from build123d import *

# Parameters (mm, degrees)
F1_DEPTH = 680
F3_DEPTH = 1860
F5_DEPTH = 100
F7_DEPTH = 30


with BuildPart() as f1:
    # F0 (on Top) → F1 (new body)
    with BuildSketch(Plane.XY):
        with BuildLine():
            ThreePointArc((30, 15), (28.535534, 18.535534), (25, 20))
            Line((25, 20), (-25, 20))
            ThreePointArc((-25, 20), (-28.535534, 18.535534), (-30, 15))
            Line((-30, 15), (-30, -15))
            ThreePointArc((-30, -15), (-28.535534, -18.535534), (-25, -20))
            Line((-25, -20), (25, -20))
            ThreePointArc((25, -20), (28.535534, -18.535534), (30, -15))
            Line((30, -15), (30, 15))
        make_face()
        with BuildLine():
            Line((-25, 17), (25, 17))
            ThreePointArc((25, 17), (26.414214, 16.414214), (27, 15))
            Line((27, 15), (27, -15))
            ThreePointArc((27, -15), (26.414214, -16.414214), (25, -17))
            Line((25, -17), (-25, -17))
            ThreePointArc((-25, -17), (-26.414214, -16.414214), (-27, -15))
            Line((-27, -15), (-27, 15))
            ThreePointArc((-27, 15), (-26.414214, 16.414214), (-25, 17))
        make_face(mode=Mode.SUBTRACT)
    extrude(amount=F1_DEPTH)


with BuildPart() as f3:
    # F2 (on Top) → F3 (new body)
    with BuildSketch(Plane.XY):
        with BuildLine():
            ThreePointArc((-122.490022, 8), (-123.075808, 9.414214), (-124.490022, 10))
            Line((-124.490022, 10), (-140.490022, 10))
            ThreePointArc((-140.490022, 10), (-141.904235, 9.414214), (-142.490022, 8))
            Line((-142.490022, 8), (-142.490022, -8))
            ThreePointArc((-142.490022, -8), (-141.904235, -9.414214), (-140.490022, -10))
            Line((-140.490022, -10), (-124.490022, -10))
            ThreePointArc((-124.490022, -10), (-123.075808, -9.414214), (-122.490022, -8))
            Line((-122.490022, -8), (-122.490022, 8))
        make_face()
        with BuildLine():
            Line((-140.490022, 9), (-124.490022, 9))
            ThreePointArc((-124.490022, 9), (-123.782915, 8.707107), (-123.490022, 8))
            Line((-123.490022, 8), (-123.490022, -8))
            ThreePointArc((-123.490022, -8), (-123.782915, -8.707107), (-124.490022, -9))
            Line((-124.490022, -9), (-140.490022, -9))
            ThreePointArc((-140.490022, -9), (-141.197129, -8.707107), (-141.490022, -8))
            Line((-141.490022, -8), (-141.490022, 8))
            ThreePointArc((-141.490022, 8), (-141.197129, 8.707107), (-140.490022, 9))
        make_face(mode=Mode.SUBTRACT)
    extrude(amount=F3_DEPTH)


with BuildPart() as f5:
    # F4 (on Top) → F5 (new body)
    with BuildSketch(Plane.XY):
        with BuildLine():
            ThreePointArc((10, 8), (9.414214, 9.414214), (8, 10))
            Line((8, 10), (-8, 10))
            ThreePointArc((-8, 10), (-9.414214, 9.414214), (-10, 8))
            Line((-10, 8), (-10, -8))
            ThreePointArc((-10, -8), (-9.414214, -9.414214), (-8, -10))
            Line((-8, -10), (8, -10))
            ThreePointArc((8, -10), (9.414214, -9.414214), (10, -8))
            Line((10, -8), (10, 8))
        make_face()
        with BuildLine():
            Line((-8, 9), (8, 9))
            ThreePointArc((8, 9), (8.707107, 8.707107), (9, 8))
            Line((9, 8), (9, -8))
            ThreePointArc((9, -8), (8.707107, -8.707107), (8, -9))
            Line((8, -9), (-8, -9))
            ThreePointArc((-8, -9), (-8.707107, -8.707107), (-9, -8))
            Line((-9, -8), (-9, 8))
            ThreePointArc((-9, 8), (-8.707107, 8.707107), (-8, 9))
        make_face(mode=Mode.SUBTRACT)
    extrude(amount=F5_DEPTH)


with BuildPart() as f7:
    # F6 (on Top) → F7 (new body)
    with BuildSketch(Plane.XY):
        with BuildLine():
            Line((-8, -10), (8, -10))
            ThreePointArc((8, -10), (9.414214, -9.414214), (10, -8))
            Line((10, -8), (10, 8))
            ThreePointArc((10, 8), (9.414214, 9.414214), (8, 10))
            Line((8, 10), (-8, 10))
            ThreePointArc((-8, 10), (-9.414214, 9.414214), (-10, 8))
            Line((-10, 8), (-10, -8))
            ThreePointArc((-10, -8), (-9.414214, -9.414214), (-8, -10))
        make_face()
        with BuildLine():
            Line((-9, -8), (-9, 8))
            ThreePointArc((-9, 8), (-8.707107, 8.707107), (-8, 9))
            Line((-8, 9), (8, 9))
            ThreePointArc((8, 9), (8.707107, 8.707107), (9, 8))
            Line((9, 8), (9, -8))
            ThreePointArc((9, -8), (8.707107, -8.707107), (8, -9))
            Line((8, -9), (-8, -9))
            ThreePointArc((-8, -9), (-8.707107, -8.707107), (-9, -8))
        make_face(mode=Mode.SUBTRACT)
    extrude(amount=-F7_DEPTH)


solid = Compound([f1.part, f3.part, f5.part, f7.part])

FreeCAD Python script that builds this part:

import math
import FreeCAD as App
import Part
import Sketcher
from FreeCAD import Vector

doc = App.newDocument("Part")
body = doc.addObject("PartDesign::Body", "Body")

# Sketch on XY plane
sketch1 = doc.addObject("Sketcher::SketchObject", "Sketch")
body.addObject(sketch1)
sketch1.AttachmentSupport = (doc.XY_Plane, [""])
sketch1.MapMode = "FlatFace"
sketch1.addGeometry([
    Part.ArcOfCircle(Part.Circle(Vector(25, 15, 0), Vector(0, 0, 1), 5), math.radians(0), math.radians(90)),  # 0
    Part.LineSegment(Vector(25, 20, 0), Vector(-25, 20, 0)),  # 1
    Part.ArcOfCircle(Part.Circle(Vector(-25, 15, 0), Vector(0, 0, 1), 5), math.radians(90), math.radians(180)),  # 2
    Part.LineSegment(Vector(-30, 15, 0), Vector(-30, -15, 0)),  # 3
    Part.ArcOfCircle(Part.Circle(Vector(-25, -15, 0), Vector(0, 0, 1), 5), math.radians(180), math.radians(270)),  # 4
    Part.LineSegment(Vector(-25, -20, 0), Vector(25, -20, 0)),  # 5
    Part.ArcOfCircle(Part.Circle(Vector(25, -15, 0), Vector(0, 0, 1), 5), math.radians(-90), math.radians(0)),  # 6
    Part.LineSegment(Vector(30, -15, 0), Vector(30, 15, 0)),  # 7
    Part.ArcOfCircle(Part.Circle(Vector(-25, 15, 0), Vector(0, 0, 1), 2), math.radians(90), math.radians(180)),  # 8
    Part.LineSegment(Vector(-25, 17, 0), Vector(25, 17, 0)),  # 9
    Part.ArcOfCircle(Part.Circle(Vector(25, 15, 0), Vector(0, 0, 1), 2), math.radians(0), math.radians(90)),  # 10
    Part.LineSegment(Vector(27, 15, 0), Vector(27, -15, 0)),  # 11
    Part.ArcOfCircle(Part.Circle(Vector(25, -15, 0), Vector(0, 0, 1), 2), math.radians(-90), math.radians(0)),  # 12
    Part.LineSegment(Vector(25, -17, 0), Vector(-25, -17, 0)),  # 13
    Part.ArcOfCircle(Part.Circle(Vector(-25, -15, 0), Vector(0, 0, 1), 2), math.radians(180), math.radians(270)),  # 14
    Part.LineSegment(Vector(-27, -15, 0), Vector(-27, 15, 0)),  # 15
], False)
sketch1.addConstraint([
    Sketcher.Constraint("Tangent", 0, 2, 1, 1),
    Sketcher.Constraint("Tangent", 1, 2, 2, 1),
    Sketcher.Constraint("Tangent", 2, 2, 3, 1),
    Sketcher.Constraint("Tangent", 3, 2, 4, 1),
    Sketcher.Constraint("Tangent", 4, 2, 5, 1),
    Sketcher.Constraint("Tangent", 5, 2, 6, 1),
    Sketcher.Constraint("Tangent", 6, 2, 7, 1),
    Sketcher.Constraint("Tangent", 7, 2, 0, 1),
    Sketcher.Constraint("Tangent", 8, 1, 9, 1),
    Sketcher.Constraint("Tangent", 9, 2, 10, 2),
    Sketcher.Constraint("Tangent", 10, 1, 11, 1),
    Sketcher.Constraint("Tangent", 11, 2, 12, 2),
    Sketcher.Constraint("Tangent", 12, 1, 13, 1),
    Sketcher.Constraint("Tangent", 13, 2, 14, 2),
    Sketcher.Constraint("Tangent", 14, 1, 15, 1),
    Sketcher.Constraint("Tangent", 15, 2, 8, 2),
    Sketcher.Constraint("Horizontal", 1),
    Sketcher.Constraint("Vertical", 3),
    Sketcher.Constraint("Horizontal", 5),
    Sketcher.Constraint("Vertical", 7),
    Sketcher.Constraint("Horizontal", 9),
    Sketcher.Constraint("Vertical", 11),
    Sketcher.Constraint("Horizontal", 13),
    Sketcher.Constraint("Vertical", 15),
    Sketcher.Constraint("Coincident", 8, 3, 2, 3),
    Sketcher.Constraint("Coincident", 10, 3, 0, 3),
    Sketcher.Constraint("Coincident", 12, 3, 6, 3),
    Sketcher.Constraint("Equal", 0, 2),
    Sketcher.Constraint("Equal", 2, 4),
    Sketcher.Constraint("Equal", 4, 6),
    Sketcher.Constraint("Equal", 12, 14),
    Sketcher.Constraint("Symmetric", 0, 3, 4, 3, -1, 1),
    Sketcher.Constraint("Radius", 0, 5.0),
    Sketcher.Constraint("Radius", 8, 1.999999),
    Sketcher.Constraint("DistanceX", 1, 2, 1, 1, 50.0),
    Sketcher.Constraint("DistanceY", 3, 2, 3, 1, 30.0),
])
pad1 = doc.addObject("PartDesign::Pad", "Pad")
body.addObject(pad1)
pad1.Profile = sketch1
pad1.Length = 680
body2 = doc.addObject("PartDesign::Body", "Body001")

# Sketch on XY plane
sketch2 = doc.addObject("Sketcher::SketchObject", "Sketch001")
body2.addObject(sketch2)
sketch2.AttachmentSupport = (doc.getObject("XY_Plane001"), [""])
sketch2.MapMode = "FlatFace"
sketch2.addGeometry([
    Part.ArcOfCircle(Part.Circle(Vector(-124.5, 8, 0), Vector(0, 0, 1), 2), math.radians(0), math.radians(90)),  # 0
    Part.LineSegment(Vector(-124.5, 10, 0), Vector(-140.5, 10, 0)),  # 1
    Part.ArcOfCircle(Part.Circle(Vector(-140.5, 8, 0), Vector(0, 0, 1), 2), math.radians(90), math.radians(180)),  # 2
    Part.LineSegment(Vector(-142.5, 8, 0), Vector(-142.5, -8, 0)),  # 3
    Part.ArcOfCircle(Part.Circle(Vector(-140.5, -8, 0), Vector(0, 0, 1), 2), math.radians(-180), math.radians(-90)),  # 4
    Part.LineSegment(Vector(-140.5, -10, 0), Vector(-124.5, -10, 0)),  # 5
    Part.ArcOfCircle(Part.Circle(Vector(-124.5, -8, 0), Vector(0, 0, 1), 2), math.radians(-90), math.radians(0)),  # 6
    Part.LineSegment(Vector(-122.5, -8, 0), Vector(-122.5, 8, 0)),  # 7
    Part.ArcOfCircle(Part.Circle(Vector(-140.5, 8, 0), Vector(0, 0, 1), 1), math.radians(90), math.radians(180)),  # 8
    Part.LineSegment(Vector(-140.5, 9, 0), Vector(-124.5, 9, 0)),  # 9
    Part.ArcOfCircle(Part.Circle(Vector(-124.5, 8, 0), Vector(0, 0, 1), 1), math.radians(0), math.radians(90)),  # 10
    Part.LineSegment(Vector(-123.5, 8, 0), Vector(-123.5, -8, 0)),  # 11
    Part.ArcOfCircle(Part.Circle(Vector(-124.5, -8, 0), Vector(0, 0, 1), 1), math.radians(-90), math.radians(0)),  # 12
    Part.LineSegment(Vector(-124.5, -9, 0), Vector(-140.5, -9, 0)),  # 13
    Part.ArcOfCircle(Part.Circle(Vector(-140.5, -8, 0), Vector(0, 0, 1), 1), math.radians(180), math.radians(270)),  # 14
    Part.LineSegment(Vector(-141.5, -8, 0), Vector(-141.5, 8, 0)),  # 15
], False)
sketch2.addConstraint([
    Sketcher.Constraint("Tangent", 0, 2, 1, 1),
    Sketcher.Constraint("Tangent", 1, 2, 2, 1),
    Sketcher.Constraint("Tangent", 2, 2, 3, 1),
    Sketcher.Constraint("Tangent", 3, 2, 4, 1),
    Sketcher.Constraint("Tangent", 4, 2, 5, 1),
    Sketcher.Constraint("Tangent", 5, 2, 6, 1),
    Sketcher.Constraint("Tangent", 6, 2, 7, 1),
    Sketcher.Constraint("Tangent", 7, 2, 0, 1),
    Sketcher.Constraint("Tangent", 8, 1, 9, 1),
    Sketcher.Constraint("Tangent", 9, 2, 10, 2),
    Sketcher.Constraint("Tangent", 10, 1, 11, 1),
    Sketcher.Constraint("Tangent", 11, 2, 12, 2),
    Sketcher.Constraint("Tangent", 12, 1, 13, 1),
    Sketcher.Constraint("Tangent", 13, 2, 14, 2),
    Sketcher.Constraint("Tangent", 14, 1, 15, 1),
    Sketcher.Constraint("Tangent", 15, 2, 8, 2),
    Sketcher.Constraint("Horizontal", 1),
    Sketcher.Constraint("Vertical", 3),
    Sketcher.Constraint("Horizontal", 5),
    Sketcher.Constraint("Vertical", 7),
    Sketcher.Constraint("Horizontal", 9),
    Sketcher.Constraint("Vertical", 11),
    Sketcher.Constraint("Horizontal", 13),
    Sketcher.Constraint("Vertical", 15),
    Sketcher.Constraint("Coincident", 8, 3, 2, 3),
    Sketcher.Constraint("Coincident", 10, 3, 0, 3),
    Sketcher.Constraint("Coincident", 12, 3, 6, 3),
    Sketcher.Constraint("Equal", 0, 2),
    Sketcher.Constraint("Equal", 2, 4),
    Sketcher.Constraint("Equal", 4, 6),
    Sketcher.Constraint("Equal", 12, 14),
    Sketcher.Constraint("Equal", 13, 3),
    Sketcher.Constraint("Radius", 0, 1.999999),
    Sketcher.Constraint("Radius", 8, 0.999999),
    Sketcher.Constraint("DistanceX", 1, 2, 1, 1, 16.0),
    Sketcher.Constraint("DistanceY", -1, 1, 0, 3, 8.000001),
    Sketcher.Constraint("DistanceX", 0, 3, -1, 1, 124.490021),
])
pad2 = doc.addObject("PartDesign::Pad", "Pad001")
body2.addObject(pad2)
pad2.Profile = sketch2
pad2.Length = 1860
body3 = doc.addObject("PartDesign::Body", "Body002")

# Sketch on XY plane
sketch3 = doc.addObject("Sketcher::SketchObject", "Sketch002")
body3.addObject(sketch3)
sketch3.AttachmentSupport = (doc.getObject("XY_Plane002"), [""])
sketch3.MapMode = "FlatFace"
sketch3.addGeometry([
    Part.ArcOfCircle(Part.Circle(Vector(8, 8, 0), Vector(0, 0, 1), 2), math.radians(0), math.radians(90)),  # 0
    Part.LineSegment(Vector(8, 10, 0), Vector(-8, 10, 0)),  # 1
    Part.ArcOfCircle(Part.Circle(Vector(-8, 8, 0), Vector(0, 0, 1), 2), math.radians(90), math.radians(180)),  # 2
    Part.LineSegment(Vector(-10, 8, 0), Vector(-10, -8, 0)),  # 3
    Part.ArcOfCircle(Part.Circle(Vector(-8, -8, 0), Vector(0, 0, 1), 2), math.radians(180), math.radians(270)),  # 4
    Part.LineSegment(Vector(-8, -10, 0), Vector(8, -10, 0)),  # 5
    Part.ArcOfCircle(Part.Circle(Vector(8, -8, 0), Vector(0, 0, 1), 2), math.radians(-90), math.radians(0)),  # 6
    Part.LineSegment(Vector(10, -8, 0), Vector(10, 8, 0)),  # 7
    Part.ArcOfCircle(Part.Circle(Vector(-8, 8, 0), Vector(0, 0, 1), 1), math.radians(90), math.radians(180)),  # 8
    Part.LineSegment(Vector(-8, 9, 0), Vector(8, 9, 0)),  # 9
    Part.ArcOfCircle(Part.Circle(Vector(8, 8, 0), Vector(0, 0, 1), 1), math.radians(0), math.radians(90)),  # 10
    Part.LineSegment(Vector(9, 8, 0), Vector(9, -8, 0)),  # 11
    Part.ArcOfCircle(Part.Circle(Vector(8, -8, 0), Vector(0, 0, 1), 1), math.radians(-90), math.radians(0)),  # 12
    Part.LineSegment(Vector(8, -9, 0), Vector(-8, -9, 0)),  # 13
    Part.ArcOfCircle(Part.Circle(Vector(-8, -8, 0), Vector(0, 0, 1), 1), math.radians(180), math.radians(270)),  # 14
    Part.LineSegment(Vector(-9, -8, 0), Vector(-9, 8, 0)),  # 15
], False)
sketch3.addConstraint([
    Sketcher.Constraint("Tangent", 0, 2, 1, 1),
    Sketcher.Constraint("Tangent", 1, 2, 2, 1),
    Sketcher.Constraint("Tangent", 2, 2, 3, 1),
    Sketcher.Constraint("Tangent", 3, 2, 4, 1),
    Sketcher.Constraint("Tangent", 4, 2, 5, 1),
    Sketcher.Constraint("Tangent", 5, 2, 6, 1),
    Sketcher.Constraint("Tangent", 6, 2, 7, 1),
    Sketcher.Constraint("Tangent", 7, 2, 0, 1),
    Sketcher.Constraint("Tangent", 8, 1, 9, 1),
    Sketcher.Constraint("Tangent", 9, 2, 10, 2),
    Sketcher.Constraint("Tangent", 10, 1, 11, 1),
    Sketcher.Constraint("Tangent", 11, 2, 12, 2),
    Sketcher.Constraint("Tangent", 12, 1, 13, 1),
    Sketcher.Constraint("Tangent", 13, 2, 14, 2),
    Sketcher.Constraint("Tangent", 14, 1, 15, 1),
    Sketcher.Constraint("Tangent", 15, 2, 8, 2),
    Sketcher.Constraint("Horizontal", 1),
    Sketcher.Constraint("Vertical", 3),
    Sketcher.Constraint("Horizontal", 5),
    Sketcher.Constraint("Vertical", 7),
    Sketcher.Constraint("Horizontal", 9),
    Sketcher.Constraint("Vertical", 11),
    Sketcher.Constraint("Horizontal", 13),
    Sketcher.Constraint("Vertical", 15),
    Sketcher.Constraint("Coincident", 8, 3, 2, 3),
    Sketcher.Constraint("Coincident", 10, 3, 0, 3),
    Sketcher.Constraint("Coincident", 12, 3, 6, 3),
    Sketcher.Constraint("Equal", 0, 2),
    Sketcher.Constraint("Equal", 2, 4),
    Sketcher.Constraint("Equal", 4, 6),
    Sketcher.Constraint("Equal", 12, 14),
    Sketcher.Constraint("Symmetric", 0, 3, 4, 3, -1, 1),
    Sketcher.Constraint("Equal", 13, 3),
    Sketcher.Constraint("Radius", 0, 1.999999),
    Sketcher.Constraint("Radius", 8, 0.999999),
    Sketcher.Constraint("DistanceX", 1, 2, 1, 1, 16.0),
])
pad3 = doc.addObject("PartDesign::Pad", "Pad002")
body3.addObject(pad3)
pad3.Profile = sketch3
pad3.Length = 100
body4 = doc.addObject("PartDesign::Body", "Body003")

# Sketch on XY plane
sketch4 = doc.addObject("Sketcher::SketchObject", "Sketch003")
body4.addObject(sketch4)
sketch4.AttachmentSupport = (doc.getObject("XY_Plane003"), [""])
sketch4.MapMode = "FlatFace"
sketch4.addGeometry([
    Part.LineSegment(Vector(-8, -10, 0), Vector(8, -10, 0)),  # 0
    Part.ArcOfCircle(Part.Circle(Vector(8, -8, 0), Vector(0, 0, 1), 2), math.radians(-90), math.radians(0)),  # 1
    Part.LineSegment(Vector(10, -8, 0), Vector(10, 8, 0)),  # 2
    Part.ArcOfCircle(Part.Circle(Vector(8, 8, 0), Vector(0, 0, 1), 2), math.radians(0), math.radians(90)),  # 3
    Part.LineSegment(Vector(8, 10, 0), Vector(-8, 10, 0)),  # 4
    Part.ArcOfCircle(Part.Circle(Vector(-8, 8, 0), Vector(0, 0, 1), 2), math.radians(90), math.radians(180)),  # 5
    Part.LineSegment(Vector(-10, 8, 0), Vector(-10, -8, 0)),  # 6
    Part.ArcOfCircle(Part.Circle(Vector(-8, -8, 0), Vector(0, 0, 1), 2), math.radians(180), math.radians(270)),  # 7
    Part.ArcOfCircle(Part.Circle(Vector(-8, -8, 0), Vector(0, 0, 1), 1), math.radians(180), math.radians(270)),  # 8
    Part.LineSegment(Vector(-9, -8, 0), Vector(-9, 8, 0)),  # 9
    Part.ArcOfCircle(Part.Circle(Vector(-8, 8, 0), Vector(0, 0, 1), 1), math.radians(90), math.radians(180)),  # 10
    Part.LineSegment(Vector(-8, 9, 0), Vector(8, 9, 0)),  # 11
    Part.ArcOfCircle(Part.Circle(Vector(8, 8, 0), Vector(0, 0, 1), 1), math.radians(0), math.radians(90)),  # 12
    Part.LineSegment(Vector(9, 8, 0), Vector(9, -8, 0)),  # 13
    Part.ArcOfCircle(Part.Circle(Vector(8, -8, 0), Vector(0, 0, 1), 1), math.radians(-90), math.radians(0)),  # 14
    Part.LineSegment(Vector(8, -9, 0), Vector(-8, -9, 0)),  # 15
], False)
sketch4.addConstraint([
    Sketcher.Constraint("Tangent", 0, 2, 1, 1),
    Sketcher.Constraint("Tangent", 1, 2, 2, 1),
    Sketcher.Constraint("Tangent", 2, 2, 3, 1),
    Sketcher.Constraint("Tangent", 3, 2, 4, 1),
    Sketcher.Constraint("Tangent", 4, 2, 5, 1),
    Sketcher.Constraint("Tangent", 5, 2, 6, 1),
    Sketcher.Constraint("Tangent", 6, 2, 7, 1),
    Sketcher.Constraint("Tangent", 7, 2, 0, 1),
    Sketcher.Constraint("Tangent", 8, 1, 9, 1),
    Sketcher.Constraint("Tangent", 9, 2, 10, 2),
    Sketcher.Constraint("Tangent", 10, 1, 11, 1),
    Sketcher.Constraint("Tangent", 11, 2, 12, 2),
    Sketcher.Constraint("Tangent", 12, 1, 13, 1),
    Sketcher.Constraint("Tangent", 13, 2, 14, 2),
    Sketcher.Constraint("Tangent", 14, 1, 15, 1),
    Sketcher.Constraint("Tangent", 15, 2, 8, 2),
    Sketcher.Constraint("Horizontal", 0),
    Sketcher.Constraint("Vertical", 2),
    Sketcher.Constraint("Horizontal", 4),
    Sketcher.Constraint("Vertical", 6),
    Sketcher.Constraint("Vertical", 9),
    Sketcher.Constraint("Horizontal", 11),
    Sketcher.Constraint("Vertical", 13),
    Sketcher.Constraint("Horizontal", 15),
    Sketcher.Constraint("Coincident", 8, 3, 7, 3),
    Sketcher.Constraint("Coincident", 10, 3, 5, 3),
    Sketcher.Constraint("Coincident", 12, 3, 3, 3),
    Sketcher.Constraint("Equal", 1, 3),
    Sketcher.Constraint("Equal", 3, 5),
    Sketcher.Constraint("Equal", 5, 7),
    Sketcher.Constraint("Equal", 12, 14),
    Sketcher.Constraint("Symmetric", 1, 3, 5, 3, -1, 1),
    Sketcher.Constraint("Equal", 15, 2),
    Sketcher.Constraint("Radius", 1, 1.999999),
    Sketcher.Constraint("Radius", 8, 0.999999),
    Sketcher.Constraint("DistanceX", 0, 1, 0, 2, 16.0),
])
pad4 = doc.addObject("PartDesign::Pad", "Pad003")
body4.addObject(pad4)
pad4.Profile = sketch4
pad4.Length = 30
pad4.Reversed = True

doc.recompute()
